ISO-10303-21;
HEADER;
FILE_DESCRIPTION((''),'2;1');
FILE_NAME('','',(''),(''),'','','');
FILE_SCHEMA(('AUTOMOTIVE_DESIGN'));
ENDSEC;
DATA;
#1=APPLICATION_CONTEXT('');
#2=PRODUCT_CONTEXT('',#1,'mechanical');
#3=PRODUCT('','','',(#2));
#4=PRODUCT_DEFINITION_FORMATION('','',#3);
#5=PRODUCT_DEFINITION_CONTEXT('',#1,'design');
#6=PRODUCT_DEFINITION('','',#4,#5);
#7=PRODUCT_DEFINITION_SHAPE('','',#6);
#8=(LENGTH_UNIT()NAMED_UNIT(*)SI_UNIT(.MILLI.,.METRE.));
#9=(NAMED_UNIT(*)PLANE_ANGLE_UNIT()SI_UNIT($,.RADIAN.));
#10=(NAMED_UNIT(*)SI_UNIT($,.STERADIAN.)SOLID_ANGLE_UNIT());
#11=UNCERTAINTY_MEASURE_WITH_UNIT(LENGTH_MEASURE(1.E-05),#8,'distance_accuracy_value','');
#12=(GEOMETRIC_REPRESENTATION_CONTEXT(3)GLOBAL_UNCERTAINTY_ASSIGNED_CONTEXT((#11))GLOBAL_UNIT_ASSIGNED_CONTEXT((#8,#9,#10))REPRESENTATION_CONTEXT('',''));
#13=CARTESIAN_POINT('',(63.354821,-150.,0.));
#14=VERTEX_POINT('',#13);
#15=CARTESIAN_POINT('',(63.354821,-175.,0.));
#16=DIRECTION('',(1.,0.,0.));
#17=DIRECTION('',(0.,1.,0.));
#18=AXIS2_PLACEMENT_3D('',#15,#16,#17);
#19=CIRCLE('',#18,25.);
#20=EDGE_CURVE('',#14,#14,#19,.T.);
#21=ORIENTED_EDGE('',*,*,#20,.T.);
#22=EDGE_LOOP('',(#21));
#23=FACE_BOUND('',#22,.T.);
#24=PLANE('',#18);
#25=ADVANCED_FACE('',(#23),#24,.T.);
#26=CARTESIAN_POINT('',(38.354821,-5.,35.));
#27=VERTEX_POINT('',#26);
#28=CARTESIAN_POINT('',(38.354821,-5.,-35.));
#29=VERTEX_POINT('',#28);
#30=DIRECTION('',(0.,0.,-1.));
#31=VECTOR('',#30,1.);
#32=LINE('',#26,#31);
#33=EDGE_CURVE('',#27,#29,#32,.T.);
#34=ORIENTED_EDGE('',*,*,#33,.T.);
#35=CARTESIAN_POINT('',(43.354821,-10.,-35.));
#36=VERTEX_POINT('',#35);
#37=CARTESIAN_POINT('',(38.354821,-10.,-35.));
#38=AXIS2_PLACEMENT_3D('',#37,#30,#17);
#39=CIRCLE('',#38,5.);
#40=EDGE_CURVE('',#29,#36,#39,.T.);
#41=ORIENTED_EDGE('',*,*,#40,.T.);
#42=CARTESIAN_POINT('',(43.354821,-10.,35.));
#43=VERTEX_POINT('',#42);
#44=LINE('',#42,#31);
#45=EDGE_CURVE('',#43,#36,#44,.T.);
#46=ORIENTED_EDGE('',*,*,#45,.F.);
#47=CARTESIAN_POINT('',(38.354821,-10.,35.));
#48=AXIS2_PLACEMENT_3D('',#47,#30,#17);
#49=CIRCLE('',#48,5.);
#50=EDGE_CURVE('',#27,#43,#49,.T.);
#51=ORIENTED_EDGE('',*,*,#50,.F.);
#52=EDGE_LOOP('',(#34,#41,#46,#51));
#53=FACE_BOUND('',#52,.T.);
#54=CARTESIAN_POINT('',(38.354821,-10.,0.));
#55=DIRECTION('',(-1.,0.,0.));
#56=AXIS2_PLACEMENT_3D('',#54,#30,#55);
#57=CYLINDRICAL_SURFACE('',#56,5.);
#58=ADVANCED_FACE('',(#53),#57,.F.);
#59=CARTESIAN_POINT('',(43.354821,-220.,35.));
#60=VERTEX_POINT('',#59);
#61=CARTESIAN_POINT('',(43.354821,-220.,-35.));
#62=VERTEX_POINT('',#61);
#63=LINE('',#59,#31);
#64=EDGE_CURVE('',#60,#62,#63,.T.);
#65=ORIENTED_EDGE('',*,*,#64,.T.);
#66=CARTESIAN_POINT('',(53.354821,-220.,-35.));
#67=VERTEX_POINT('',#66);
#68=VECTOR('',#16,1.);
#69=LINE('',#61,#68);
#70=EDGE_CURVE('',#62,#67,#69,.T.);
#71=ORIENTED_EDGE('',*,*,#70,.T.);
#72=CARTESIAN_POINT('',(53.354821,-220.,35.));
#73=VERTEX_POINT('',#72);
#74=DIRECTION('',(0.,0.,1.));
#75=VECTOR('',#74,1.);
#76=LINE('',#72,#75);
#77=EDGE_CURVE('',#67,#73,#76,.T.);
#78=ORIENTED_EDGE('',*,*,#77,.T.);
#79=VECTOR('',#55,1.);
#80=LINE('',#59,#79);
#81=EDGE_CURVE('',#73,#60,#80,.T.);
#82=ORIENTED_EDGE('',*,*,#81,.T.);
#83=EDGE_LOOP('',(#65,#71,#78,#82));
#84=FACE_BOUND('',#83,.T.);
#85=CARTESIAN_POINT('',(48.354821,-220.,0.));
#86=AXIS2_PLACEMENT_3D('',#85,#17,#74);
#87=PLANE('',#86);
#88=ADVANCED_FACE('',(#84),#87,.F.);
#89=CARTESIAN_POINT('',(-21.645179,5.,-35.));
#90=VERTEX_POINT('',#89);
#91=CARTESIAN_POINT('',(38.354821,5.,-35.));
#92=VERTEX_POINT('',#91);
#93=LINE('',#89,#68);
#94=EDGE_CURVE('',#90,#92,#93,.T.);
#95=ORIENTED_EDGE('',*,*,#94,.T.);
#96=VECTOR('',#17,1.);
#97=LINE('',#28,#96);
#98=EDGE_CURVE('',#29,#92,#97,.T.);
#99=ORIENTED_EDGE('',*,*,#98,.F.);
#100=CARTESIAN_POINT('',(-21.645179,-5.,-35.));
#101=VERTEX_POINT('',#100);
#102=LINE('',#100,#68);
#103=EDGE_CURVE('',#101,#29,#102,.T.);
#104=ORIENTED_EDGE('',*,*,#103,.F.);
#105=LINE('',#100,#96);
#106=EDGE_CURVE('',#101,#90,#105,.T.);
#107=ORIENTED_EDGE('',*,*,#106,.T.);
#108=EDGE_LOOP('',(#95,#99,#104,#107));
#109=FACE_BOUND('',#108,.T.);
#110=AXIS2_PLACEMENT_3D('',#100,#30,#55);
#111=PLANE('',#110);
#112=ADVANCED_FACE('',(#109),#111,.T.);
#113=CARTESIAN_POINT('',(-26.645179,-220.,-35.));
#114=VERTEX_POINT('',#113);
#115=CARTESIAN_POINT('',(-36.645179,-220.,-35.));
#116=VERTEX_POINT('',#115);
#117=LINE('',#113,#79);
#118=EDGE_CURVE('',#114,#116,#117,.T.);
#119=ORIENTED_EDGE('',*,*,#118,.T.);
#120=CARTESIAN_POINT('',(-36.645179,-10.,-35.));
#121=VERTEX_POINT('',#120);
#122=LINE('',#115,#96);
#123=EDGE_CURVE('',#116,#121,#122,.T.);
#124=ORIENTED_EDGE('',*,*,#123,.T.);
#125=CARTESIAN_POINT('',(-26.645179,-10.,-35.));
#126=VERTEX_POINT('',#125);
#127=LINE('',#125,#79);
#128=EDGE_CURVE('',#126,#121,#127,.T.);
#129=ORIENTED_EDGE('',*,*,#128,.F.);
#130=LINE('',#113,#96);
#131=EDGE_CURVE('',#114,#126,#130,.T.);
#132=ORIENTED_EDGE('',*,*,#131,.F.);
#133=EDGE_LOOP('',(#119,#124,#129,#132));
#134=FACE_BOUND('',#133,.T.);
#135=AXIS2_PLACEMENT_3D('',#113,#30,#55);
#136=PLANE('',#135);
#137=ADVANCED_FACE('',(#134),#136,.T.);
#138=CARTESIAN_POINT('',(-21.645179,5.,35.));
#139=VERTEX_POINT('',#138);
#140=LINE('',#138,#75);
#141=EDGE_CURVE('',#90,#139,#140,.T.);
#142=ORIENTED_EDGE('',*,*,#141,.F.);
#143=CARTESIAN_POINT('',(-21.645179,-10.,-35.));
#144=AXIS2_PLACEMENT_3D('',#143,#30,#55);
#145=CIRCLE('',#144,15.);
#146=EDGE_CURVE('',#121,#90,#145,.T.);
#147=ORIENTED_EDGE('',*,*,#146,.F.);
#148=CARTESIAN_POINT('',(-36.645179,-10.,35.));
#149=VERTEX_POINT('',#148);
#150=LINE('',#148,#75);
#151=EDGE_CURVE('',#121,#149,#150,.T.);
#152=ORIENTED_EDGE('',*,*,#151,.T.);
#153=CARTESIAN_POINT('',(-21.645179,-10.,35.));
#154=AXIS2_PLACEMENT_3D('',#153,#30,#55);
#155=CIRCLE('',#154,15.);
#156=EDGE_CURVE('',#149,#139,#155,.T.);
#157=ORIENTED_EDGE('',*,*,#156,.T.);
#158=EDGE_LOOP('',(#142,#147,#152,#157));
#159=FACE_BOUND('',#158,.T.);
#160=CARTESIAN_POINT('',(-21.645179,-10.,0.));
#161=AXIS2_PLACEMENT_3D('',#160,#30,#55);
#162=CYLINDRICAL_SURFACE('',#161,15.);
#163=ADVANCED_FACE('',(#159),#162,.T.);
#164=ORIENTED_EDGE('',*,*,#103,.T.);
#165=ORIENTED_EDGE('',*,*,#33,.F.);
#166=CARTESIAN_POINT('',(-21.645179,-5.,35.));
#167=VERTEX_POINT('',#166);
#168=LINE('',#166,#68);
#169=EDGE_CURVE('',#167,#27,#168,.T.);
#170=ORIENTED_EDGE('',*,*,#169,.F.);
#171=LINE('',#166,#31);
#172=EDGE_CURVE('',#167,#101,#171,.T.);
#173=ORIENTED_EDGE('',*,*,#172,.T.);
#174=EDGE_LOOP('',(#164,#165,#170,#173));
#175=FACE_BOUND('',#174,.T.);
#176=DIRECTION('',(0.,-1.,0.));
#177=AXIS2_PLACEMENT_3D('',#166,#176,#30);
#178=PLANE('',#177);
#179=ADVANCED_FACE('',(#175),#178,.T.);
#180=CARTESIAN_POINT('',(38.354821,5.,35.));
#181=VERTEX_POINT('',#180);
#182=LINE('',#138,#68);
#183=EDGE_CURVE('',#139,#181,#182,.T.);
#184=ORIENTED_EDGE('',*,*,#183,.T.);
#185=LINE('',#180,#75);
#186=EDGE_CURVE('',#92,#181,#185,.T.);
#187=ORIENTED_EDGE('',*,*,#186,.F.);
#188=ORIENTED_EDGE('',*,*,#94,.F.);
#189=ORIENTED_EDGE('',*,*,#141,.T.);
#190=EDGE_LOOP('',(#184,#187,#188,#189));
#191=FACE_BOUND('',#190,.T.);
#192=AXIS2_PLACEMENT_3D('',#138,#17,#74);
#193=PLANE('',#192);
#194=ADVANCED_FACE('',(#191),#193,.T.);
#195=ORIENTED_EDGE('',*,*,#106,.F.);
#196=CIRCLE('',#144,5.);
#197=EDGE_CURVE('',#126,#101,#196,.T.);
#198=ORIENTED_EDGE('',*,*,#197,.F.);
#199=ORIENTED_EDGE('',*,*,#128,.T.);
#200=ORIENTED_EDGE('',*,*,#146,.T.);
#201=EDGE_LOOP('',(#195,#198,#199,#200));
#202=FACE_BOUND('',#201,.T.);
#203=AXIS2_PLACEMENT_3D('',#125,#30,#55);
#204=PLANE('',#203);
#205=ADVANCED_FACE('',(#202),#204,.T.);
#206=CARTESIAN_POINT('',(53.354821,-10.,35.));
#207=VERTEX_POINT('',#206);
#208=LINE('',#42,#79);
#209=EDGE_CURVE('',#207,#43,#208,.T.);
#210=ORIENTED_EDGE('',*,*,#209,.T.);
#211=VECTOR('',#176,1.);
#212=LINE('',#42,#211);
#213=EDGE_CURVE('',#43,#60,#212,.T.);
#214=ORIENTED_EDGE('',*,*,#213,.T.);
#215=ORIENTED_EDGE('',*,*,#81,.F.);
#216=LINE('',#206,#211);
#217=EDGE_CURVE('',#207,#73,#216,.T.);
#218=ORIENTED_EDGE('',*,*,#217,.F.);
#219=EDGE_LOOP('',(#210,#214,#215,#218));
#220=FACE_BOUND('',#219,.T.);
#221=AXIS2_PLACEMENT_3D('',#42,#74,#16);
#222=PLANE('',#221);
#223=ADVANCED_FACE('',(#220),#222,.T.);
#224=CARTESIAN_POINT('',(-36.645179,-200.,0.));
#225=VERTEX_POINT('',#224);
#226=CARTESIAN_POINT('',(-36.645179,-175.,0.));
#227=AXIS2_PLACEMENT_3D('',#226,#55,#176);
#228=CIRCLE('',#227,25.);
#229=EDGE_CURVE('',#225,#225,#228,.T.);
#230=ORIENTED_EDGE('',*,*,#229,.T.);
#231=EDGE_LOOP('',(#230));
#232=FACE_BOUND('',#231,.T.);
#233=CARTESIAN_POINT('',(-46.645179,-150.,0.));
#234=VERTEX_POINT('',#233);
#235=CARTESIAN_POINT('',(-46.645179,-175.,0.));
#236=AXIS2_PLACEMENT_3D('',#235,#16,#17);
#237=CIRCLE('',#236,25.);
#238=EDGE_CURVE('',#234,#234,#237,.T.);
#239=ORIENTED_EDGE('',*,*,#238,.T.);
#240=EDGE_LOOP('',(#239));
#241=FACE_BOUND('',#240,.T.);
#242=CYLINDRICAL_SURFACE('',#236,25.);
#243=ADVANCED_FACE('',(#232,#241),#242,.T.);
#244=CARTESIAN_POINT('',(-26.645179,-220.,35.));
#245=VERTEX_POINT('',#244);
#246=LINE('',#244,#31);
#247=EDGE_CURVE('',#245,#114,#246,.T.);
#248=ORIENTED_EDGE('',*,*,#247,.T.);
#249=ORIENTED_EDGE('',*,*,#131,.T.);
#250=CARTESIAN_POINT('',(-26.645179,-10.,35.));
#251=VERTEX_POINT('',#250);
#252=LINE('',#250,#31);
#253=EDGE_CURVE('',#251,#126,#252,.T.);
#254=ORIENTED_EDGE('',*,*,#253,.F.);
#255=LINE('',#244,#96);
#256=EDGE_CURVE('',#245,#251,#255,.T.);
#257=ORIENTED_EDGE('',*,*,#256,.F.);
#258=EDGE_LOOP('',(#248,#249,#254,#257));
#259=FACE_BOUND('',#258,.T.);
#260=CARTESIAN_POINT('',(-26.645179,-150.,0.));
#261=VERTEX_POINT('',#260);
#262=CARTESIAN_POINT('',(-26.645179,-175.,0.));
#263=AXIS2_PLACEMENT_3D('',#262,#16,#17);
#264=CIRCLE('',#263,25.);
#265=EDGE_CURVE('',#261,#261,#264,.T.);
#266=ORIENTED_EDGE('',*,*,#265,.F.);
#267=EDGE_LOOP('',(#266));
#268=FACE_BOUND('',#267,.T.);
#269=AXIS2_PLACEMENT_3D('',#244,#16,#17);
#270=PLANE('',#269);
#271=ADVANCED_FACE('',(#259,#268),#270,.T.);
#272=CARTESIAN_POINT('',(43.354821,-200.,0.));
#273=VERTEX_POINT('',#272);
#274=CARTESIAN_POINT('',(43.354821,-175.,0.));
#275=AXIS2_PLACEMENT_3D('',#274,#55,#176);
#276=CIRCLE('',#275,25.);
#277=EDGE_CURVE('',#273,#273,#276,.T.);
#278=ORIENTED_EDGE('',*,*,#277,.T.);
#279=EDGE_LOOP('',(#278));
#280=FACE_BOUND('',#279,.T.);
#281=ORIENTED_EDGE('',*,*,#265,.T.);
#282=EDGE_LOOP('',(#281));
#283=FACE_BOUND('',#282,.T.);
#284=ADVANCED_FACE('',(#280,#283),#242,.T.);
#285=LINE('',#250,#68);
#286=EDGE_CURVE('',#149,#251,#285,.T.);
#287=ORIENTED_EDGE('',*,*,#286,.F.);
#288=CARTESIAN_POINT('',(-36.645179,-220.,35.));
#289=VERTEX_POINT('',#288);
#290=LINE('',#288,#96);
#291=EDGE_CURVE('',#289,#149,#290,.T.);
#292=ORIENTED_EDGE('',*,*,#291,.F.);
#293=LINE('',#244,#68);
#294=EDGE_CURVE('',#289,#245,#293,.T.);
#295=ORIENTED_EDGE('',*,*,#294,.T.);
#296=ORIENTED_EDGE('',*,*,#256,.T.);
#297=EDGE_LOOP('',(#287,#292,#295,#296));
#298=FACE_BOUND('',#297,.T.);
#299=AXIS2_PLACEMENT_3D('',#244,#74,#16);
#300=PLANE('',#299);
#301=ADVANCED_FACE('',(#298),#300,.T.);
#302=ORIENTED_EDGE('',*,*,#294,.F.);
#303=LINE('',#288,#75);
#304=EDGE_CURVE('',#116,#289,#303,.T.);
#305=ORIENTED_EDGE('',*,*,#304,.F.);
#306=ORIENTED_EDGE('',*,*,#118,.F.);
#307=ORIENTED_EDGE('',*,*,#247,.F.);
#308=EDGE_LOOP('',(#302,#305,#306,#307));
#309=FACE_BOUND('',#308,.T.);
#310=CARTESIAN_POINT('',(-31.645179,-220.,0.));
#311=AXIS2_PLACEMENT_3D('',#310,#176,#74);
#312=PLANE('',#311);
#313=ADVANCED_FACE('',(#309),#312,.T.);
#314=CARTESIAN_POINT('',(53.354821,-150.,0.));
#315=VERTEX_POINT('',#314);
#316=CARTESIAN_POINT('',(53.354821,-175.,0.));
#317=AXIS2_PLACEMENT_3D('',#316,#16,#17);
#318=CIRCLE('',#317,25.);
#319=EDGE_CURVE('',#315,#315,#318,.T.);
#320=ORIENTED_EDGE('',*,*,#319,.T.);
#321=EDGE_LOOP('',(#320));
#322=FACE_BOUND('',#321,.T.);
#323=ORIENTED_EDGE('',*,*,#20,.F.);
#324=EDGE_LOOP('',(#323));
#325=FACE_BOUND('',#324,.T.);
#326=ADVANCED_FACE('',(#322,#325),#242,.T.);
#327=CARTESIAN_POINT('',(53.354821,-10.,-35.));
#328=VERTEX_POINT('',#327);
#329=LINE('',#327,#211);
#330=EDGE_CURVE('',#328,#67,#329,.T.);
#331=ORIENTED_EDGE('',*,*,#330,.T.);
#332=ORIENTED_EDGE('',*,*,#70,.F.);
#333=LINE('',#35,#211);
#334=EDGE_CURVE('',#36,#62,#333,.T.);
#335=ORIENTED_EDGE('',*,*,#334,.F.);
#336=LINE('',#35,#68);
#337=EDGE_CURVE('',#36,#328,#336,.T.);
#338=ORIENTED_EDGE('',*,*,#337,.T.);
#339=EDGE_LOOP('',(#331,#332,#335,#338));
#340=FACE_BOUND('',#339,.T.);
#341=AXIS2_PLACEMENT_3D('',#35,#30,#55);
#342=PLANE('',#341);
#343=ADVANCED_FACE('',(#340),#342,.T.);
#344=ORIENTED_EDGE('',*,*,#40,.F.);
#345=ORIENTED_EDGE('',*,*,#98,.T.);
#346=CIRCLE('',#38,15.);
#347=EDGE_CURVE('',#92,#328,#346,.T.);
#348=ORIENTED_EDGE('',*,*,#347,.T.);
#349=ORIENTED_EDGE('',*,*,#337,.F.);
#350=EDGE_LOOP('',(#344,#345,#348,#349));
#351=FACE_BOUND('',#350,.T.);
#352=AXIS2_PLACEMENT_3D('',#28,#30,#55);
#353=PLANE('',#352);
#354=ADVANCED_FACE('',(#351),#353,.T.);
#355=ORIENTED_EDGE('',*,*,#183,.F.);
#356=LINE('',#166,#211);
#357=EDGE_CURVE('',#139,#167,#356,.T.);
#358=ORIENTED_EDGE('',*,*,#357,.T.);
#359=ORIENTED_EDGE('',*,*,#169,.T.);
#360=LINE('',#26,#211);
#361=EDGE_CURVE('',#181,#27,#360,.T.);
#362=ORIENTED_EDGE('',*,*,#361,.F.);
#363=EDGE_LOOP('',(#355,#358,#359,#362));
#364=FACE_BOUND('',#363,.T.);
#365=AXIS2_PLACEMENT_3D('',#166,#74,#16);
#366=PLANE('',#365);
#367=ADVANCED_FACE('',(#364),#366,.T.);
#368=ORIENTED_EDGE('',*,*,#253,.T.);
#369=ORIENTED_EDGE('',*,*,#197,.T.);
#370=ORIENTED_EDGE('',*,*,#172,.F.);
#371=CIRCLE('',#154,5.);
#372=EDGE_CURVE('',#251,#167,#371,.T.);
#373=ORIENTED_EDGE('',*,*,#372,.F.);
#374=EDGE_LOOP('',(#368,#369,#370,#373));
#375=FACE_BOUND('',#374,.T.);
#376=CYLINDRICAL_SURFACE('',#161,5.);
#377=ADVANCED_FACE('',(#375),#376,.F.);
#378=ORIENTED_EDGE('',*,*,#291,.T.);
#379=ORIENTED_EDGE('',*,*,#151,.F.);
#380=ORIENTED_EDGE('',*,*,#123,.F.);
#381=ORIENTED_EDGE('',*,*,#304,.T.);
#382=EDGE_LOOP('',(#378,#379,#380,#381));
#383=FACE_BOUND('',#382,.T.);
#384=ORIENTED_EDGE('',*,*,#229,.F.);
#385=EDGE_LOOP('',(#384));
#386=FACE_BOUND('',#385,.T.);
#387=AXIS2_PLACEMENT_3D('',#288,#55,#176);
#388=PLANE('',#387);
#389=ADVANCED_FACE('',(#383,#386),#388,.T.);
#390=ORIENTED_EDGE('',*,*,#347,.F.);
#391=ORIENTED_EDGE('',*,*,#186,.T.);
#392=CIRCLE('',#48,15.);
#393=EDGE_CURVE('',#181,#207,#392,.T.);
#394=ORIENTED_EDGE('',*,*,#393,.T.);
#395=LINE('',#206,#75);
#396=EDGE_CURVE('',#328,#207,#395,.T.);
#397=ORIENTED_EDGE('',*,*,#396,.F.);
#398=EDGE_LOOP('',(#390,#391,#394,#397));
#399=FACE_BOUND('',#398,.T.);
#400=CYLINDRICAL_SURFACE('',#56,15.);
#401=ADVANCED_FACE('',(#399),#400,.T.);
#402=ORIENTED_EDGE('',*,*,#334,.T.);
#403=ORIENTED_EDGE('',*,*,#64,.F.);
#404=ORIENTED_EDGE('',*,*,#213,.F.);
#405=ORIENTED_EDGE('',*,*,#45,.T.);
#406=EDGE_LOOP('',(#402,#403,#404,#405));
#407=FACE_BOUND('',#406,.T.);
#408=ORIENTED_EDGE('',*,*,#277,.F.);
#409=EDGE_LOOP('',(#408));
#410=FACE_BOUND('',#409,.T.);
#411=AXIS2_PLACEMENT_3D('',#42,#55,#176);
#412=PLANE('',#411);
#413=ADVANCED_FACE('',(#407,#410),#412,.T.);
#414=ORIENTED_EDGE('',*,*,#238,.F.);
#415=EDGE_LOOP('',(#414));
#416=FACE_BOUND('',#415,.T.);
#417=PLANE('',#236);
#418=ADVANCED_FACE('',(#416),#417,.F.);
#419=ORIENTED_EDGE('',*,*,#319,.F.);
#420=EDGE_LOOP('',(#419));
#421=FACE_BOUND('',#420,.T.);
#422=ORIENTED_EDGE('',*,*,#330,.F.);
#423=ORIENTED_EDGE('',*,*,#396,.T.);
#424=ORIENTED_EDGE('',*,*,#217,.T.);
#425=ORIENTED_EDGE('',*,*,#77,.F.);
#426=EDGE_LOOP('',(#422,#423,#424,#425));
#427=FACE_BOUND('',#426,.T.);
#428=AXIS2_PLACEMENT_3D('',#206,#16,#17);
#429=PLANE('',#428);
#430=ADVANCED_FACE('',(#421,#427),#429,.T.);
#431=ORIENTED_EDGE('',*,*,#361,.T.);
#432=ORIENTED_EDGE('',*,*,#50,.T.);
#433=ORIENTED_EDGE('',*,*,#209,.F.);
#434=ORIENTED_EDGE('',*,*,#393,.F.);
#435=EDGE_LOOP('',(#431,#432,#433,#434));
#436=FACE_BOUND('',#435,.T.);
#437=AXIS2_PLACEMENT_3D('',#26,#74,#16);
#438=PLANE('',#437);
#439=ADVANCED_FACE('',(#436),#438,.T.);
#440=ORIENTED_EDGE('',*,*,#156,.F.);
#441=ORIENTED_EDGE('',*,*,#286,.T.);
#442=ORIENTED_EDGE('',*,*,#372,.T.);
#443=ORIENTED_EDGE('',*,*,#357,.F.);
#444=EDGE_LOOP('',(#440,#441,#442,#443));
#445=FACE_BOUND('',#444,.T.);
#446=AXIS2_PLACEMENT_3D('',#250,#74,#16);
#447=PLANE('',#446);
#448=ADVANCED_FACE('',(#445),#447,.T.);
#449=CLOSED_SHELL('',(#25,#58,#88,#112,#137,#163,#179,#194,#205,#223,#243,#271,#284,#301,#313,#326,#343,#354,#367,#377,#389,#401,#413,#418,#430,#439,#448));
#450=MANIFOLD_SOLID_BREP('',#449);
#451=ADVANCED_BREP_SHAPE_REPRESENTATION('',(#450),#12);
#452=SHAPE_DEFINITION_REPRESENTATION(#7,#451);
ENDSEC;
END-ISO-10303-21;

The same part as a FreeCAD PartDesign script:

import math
import FreeCAD as App
import Part
import Sketcher

V = App.Vector
Q = App.Units.Quantity

doc = App.newDocument("Part")
body = doc.addObject("PartDesign::Body", "Body")

# Sketch on YZ plane
sketch1 = body.newObject("Sketcher::SketchObject", "Sketch")
sketch1.AttachmentSupport = (doc.getObject("YZ_Plane"), [""])
sketch1.MapMode = "FlatFace"
sketch1.addGeometry([
    Part.LineSegment(V(5, 35, 0), V(-5, 35, 0)),
    Part.LineSegment(V(-5, 35, 0), V(-5, -35, 0)),
    Part.LineSegment(V(-5, -35, 0), V(5, -35, 0)),
    Part.LineSegment(V(5, -35, 0), V(5, 35, 0)),
], False)
sketch1.addConstraint([
    Sketcher.Constraint("Coincident", 0, 2, 1, 1),
    Sketcher.Constraint("Coincident", 1, 2, 2, 1),
    Sketcher.Constraint("Coincident", 2, 2, 3, 1),
    Sketcher.Constraint("Coincident", 3, 2, 0, 1),
    Sketcher.Constraint("Horizontal", 0),
    Sketcher.Constraint("Vertical", 1),
    Sketcher.Constraint("Horizontal", 2),
    Sketcher.Constraint("Vertical", 3),
    Sketcher.Constraint("Symmetric", 0, 2, 2, 2, -1, 1),
    Sketcher.Constraint("DistanceX", 0, 2, 0, 1, Q("10 mm")),
    Sketcher.Constraint("DistanceY", 1, 2, 1, 1, Q("70 mm")),
])

# Sketch on XY plane
sketch2 = body.newObject("Sketcher::SketchObject", "Sketch001")
sketch2.AttachmentSupport = (doc.getObject("XY_Plane"), [""])
sketch2.MapMode = "FlatFace"
sketch2.addGeometry([
    Part.LineSegment(V(48, -220, 0), V(48, -10, 0)),  # 0
    Part.ArcOfCircle(Part.Circle(V(38, -10, 0), V(0, 0, 1), 10), math.radians(0), math.radians(90)),  # 1
    Part.LineSegment(V(38, 0, 0), V(-22, 0, 0)),  # 2
    Part.ArcOfCircle(Part.Circle(V(-22, -10, 0), V(0, 0, 1), 10), math.radians(90), math.radians(180)),  # 3
    Part.LineSegment(V(-32, -10, 0), V(-32, -220, 0)),  # 4
], False)
sketch2.addConstraint([
    Sketcher.Constraint("Tangent", 0, 2, 1, 1),
    Sketcher.Constraint("Tangent", 1, 2, 2, 1),
    Sketcher.Constraint("Tangent", 2, 2, 3, 1),
    Sketcher.Constraint("Tangent", 3, 2, 4, 1),
    Sketcher.Constraint("Vertical", 0),
    Sketcher.Constraint("Horizontal", 2),
    Sketcher.Constraint("Vertical", 4),
    Sketcher.Constraint("Equal", 1, 3),
    Sketcher.Constraint("PointOnObject", 1, 2, -1),
    Sketcher.Constraint("Horizontal", 0, 1, 4, 2),
    Sketcher.Constraint("Radius", 1, Q("10 mm")),
    Sketcher.Constraint("DistanceX", 2, 2, 2, 1, Q("60 mm")),
    Sketcher.Constraint("DistanceY", 0, 1, 0, 2, Q("210 mm")),
    Sketcher.Constraint("DistanceX", -1, 1, 1, 3, Q("38.354821 mm")),
])
doc.recompute()

additivepipe = body.newObject("PartDesign::AdditivePipe", "AdditivePipe")
additivepipe.Profile = sketch1
additivepipe.Spine = (sketch2, ["Edge1", "Edge2", "Edge3", "Edge4", "Edge5"])

# Sketch on YZ plane
sketch3 = body.newObject("Sketcher::SketchObject", "Sketch002")
sketch3.AttachmentSupport = (doc.getObject("YZ_Plane"), [""])
sketch3.MapMode = "FlatFace"
sketch3.AttachmentOffset = App.Placement(V(0, 0, 53.354821), App.Rotation())
sketch3.addGeometry(Part.Circle(V(-175, 0, 0), V(0, 0, 1), 25), False)
sketch3.addConstraint([
    Sketcher.Constraint("PointOnObject", 0, 3, -1),
    Sketcher.Constraint("Diameter", 0, Q("50 mm")),
    Sketcher.Constraint("DistanceX", 0, 3, -1, 1, Q("175 mm")),
])
pocket1 = body.newObject("PartDesign::Pocket", "Pocket")
pocket1.Profile = sketch3
pocket1.Type = "ThroughAll"

# Sketch on YZ plane
sketch4 = body.newObject("Sketcher::SketchObject", "Sketch003")
sketch4.AttachmentSupport = (doc.getObject("YZ_Plane"), [""])
sketch4.MapMode = "FlatFace"
sketch4.AttachmentOffset = App.Placement(V(0, 0, 53.354821), App.Rotation())
sketch4.addGeometry(Part.Circle(V(-175, 0, 0), V(0, 0, 1), 25), False)
sketch4.addConstraint([
    Sketcher.Constraint("PointOnObject", 0, 3, -1),
    Sketcher.Constraint("Diameter", 0, Q("50 mm")),
    Sketcher.Constraint("DistanceX", 0, 3, -1, 1, Q("175 mm")),
])
pad1 = body.newObject("PartDesign::Pad", "Pad")
pad1.Profile = sketch4
pad1.Type = "TwoLengths"
pad1.Length = 10
pad1.Length2 = 100

doc.recompute()
